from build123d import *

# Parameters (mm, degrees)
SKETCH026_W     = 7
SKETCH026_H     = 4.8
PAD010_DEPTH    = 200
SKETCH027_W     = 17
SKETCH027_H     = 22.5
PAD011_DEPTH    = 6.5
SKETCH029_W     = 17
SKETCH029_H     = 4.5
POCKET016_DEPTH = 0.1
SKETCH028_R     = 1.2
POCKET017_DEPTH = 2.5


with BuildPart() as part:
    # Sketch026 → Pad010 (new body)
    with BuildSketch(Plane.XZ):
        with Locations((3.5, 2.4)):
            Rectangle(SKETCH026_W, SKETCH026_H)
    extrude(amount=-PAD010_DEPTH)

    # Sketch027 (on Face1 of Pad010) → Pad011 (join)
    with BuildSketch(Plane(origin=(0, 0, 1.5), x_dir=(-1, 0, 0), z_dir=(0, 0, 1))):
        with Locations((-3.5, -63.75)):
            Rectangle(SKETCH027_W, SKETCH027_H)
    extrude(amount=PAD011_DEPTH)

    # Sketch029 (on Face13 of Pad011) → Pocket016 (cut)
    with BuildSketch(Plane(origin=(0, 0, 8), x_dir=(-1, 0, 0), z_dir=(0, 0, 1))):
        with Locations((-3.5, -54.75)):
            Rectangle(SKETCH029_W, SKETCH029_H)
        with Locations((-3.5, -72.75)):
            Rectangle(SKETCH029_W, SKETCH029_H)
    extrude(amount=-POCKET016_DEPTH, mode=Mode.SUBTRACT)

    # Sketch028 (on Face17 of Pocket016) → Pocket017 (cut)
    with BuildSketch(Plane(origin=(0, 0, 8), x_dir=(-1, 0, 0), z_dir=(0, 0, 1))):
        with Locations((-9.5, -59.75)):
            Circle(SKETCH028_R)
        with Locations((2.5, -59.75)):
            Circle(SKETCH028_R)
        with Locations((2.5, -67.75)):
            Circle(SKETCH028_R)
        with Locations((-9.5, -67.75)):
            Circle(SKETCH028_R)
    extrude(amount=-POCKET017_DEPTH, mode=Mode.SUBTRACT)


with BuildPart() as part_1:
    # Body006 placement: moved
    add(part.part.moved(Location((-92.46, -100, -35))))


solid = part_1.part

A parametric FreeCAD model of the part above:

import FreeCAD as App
import Part
import Sketcher

V = App.Vector
Q = App.Units.Quantity


def add_polygon(sketch, points):
    """Adds a closed chain of lines whose ends are joined by coincident constraints."""
    first, n = sketch.GeometryCount, len(points)
    for a, b in zip(points, points[1:] + points[:1]):
        sketch.addGeometry(Part.LineSegment(App.Vector(*a, 0), App.Vector(*b, 0)), False)
    for i in range(n):
        sketch.addConstraint(Sketcher.Constraint("Coincident", first + i, 2, first + (i + 1) % n, 1))

doc = App.newDocument("Part")
params = doc.addObject("Spreadsheet::Sheet", "Params")
for row, (alias, value) in enumerate([
    ("sketch1_width", "7 mm"),
    ("sketch1_height", "4.8 mm"),
    ("pad1_length", "200 mm"),
    ("sketch2_width", "17 mm"),
    ("sketch2_height", "22.5 mm"),
    ("pad2_length", "6.5 mm"),
    ("sketch3_width", "17 mm"),
    ("sketch3_height", "4.5 mm"),
    ("pocket1_length", "0.1 mm"),
    ("sketch4_diameter", "2.4 mm"),
    ("pocket2_length", "2.5 mm"),
], start=1):
    params.set(f"A{row}", alias)
    params.set(f"B{row}", "=" + value)
    params.setAlias(f"B{row}", alias)

body = doc.addObject("PartDesign::Body", "Body")

sketch1 = doc.addObject("Sketcher::SketchObject", "Sketch")
body.addObject(sketch1)
sketch1.AttachmentSupport = (doc.XZ_Plane, [""])
sketch1.MapMode = "FlatFace"
add_polygon(sketch1, [(0, 4.8), (0, 0), (7, 0), (7, 4.8)])
sketch1.addConstraint([
    Sketcher.Constraint("Vertical", 0),
    Sketcher.Constraint("Horizontal", 1),
    Sketcher.Constraint("Vertical", 2),
    Sketcher.Constraint("Horizontal", 3),
    Sketcher.Constraint("Coincident", 0, 2, -1, 1),
    Sketcher.Constraint("DistanceX", 1, 1, 1, 2, Q("7 mm")),
    Sketcher.Constraint("DistanceY", 0, 2, 0, 1, Q("4.8 mm")),
])
sketch1.setExpression("Constraints[9]", "Params.sketch1_width")
sketch1.setExpression("Constraints[10]", "Params.sketch1_height")
pad1 = doc.addObject("PartDesign::Pad", "Pad")
body.addObject(pad1)
pad1.Profile = sketch1
pad1.setExpression("Length", "Params.pad1_length")
pad1.Reversed = True

sketch2 = doc.addObject("Sketcher::SketchObject", "Sketch001")
body.addObject(sketch2)
sketch2.AttachmentSupport = (doc.XY_Plane, [""])
sketch2.MapMode = "FlatFace"
sketch2.AttachmentOffset = App.Placement(V(0, 0, 1.5), App.Rotation())
add_polygon(sketch2, [(12, 52), (12, 75), (-5, 75), (-5, 52)])
sketch2.addConstraint([
    Sketcher.Constraint("Vertical", 0),
    Sketcher.Constraint("Horizontal", 1),
    Sketcher.Constraint("Vertical", 2),
    Sketcher.Constraint("Horizontal", 3),
    Sketcher.Constraint("DistanceX", 1, 2, 1, 1, Q("17 mm")),
    Sketcher.Constraint("DistanceY", 0, 1, 0, 2, Q("22.5 mm")),
    Sketcher.Constraint("DistanceX", -1, 1, 0, 2, Q("12 mm")),
    Sketcher.Constraint("DistanceY", -1, 1, 0, 2, Q("75 mm")),
])
sketch2.setExpression("Constraints[8]", "Params.sketch2_width")
sketch2.setExpression("Constraints[9]", "Params.sketch2_height")
pad2 = doc.addObject("PartDesign::Pad", "Pad001")
body.addObject(pad2)
pad2.Profile = sketch2
pad2.setExpression("Length", "Params.pad2_length")

sketch3 = doc.addObject("Sketcher::SketchObject", "Sketch002")
body.addObject(sketch3)
sketch3.AttachmentSupport = (doc.XY_Plane, [""])
sketch3.MapMode = "FlatFace"
sketch3.AttachmentOffset = App.Placement(V(0, 0, 8), App.Rotation())
add_polygon(sketch3, [(12, 52.5), (12, 57), (-5, 57), (-5, 52.5)])
add_polygon(sketch3, [(12, 70.5), (12, 75), (-5, 75), (-5, 70.5)])
sketch3.addConstraint([
    Sketcher.Constraint("Vertical", 0),
    Sketcher.Constraint("Horizontal", 1),
    Sketcher.Constraint("Vertical", 2),
    Sketcher.Constraint("Horizontal", 3),
    Sketcher.Constraint("Vertical", 4),
    Sketcher.Constraint("Horizontal", 5),
    Sketcher.Constraint("Vertical", 6),
    Sketcher.Constraint("Horizontal", 7),
    Sketcher.Constraint("Vertical", 3, 2, 4, 2),
    Sketcher.Constraint("Vertical", 2, 2, 5, 2),
    Sketcher.Constraint("Equal", 2, 4),
    Sketcher.Constraint("DistanceX", 1, 2, 1, 1, Q("17 mm")),
    Sketcher.Constraint("DistanceY", 0, 1, 0, 2, Q("4.5 mm")),
    Sketcher.Constraint("DistanceX", -1, 1, 0, 2, Q("12 mm")),
    Sketcher.Constraint("DistanceY", -1, 1, 0, 2, Q("57 mm")),
    Sketcher.Constraint("DistanceY", -1, 1, 4, 2, Q("75 mm")),
])
sketch3.setExpression("Constraints[19]", "Params.sketch3_width")
sketch3.setExpression("Constraints[20]", "Params.sketch3_height")
pocket1 = doc.addObject("PartDesign::Pocket", "Pocket")
body.addObject(pocket1)
pocket1.Profile = sketch3
pocket1.setExpression("Length", "Params.pocket1_length")

sketch4 = doc.addObject("Sketcher::SketchObject", "Sketch003")
body.addObject(sketch4)
sketch4.AttachmentSupport = (doc.XY_Plane, [""])
sketch4.MapMode = "FlatFace"
sketch4.AttachmentOffset = App.Placement(V(0, 0, 8), App.Rotation())
sketch4.addGeometry([
    Part.Circle(V(9.5, 59.8, 0), V(0, 0, 1), 1.2),
    Part.Circle(V(-2.5, 59.8, 0), V(0, 0, 1), 1.2),
    Part.Circle(V(-2.5, 67.8, 0), V(0, 0, 1), 1.2),
    Part.Circle(V(9.5, 67.8, 0), V(0, 0, 1), 1.2),
], False)
sketch4.addConstraint([
    Sketcher.Constraint("Equal", 0, 1),
    Sketcher.Constraint("Equal", 1, 2),
    Sketcher.Constraint("Equal", 2, 3),
    Sketcher.Constraint("Horizontal", 0, 3, 1, 3),
    Sketcher.Constraint("Horizontal", 2, 3, 3, 3),
    Sketcher.Constraint("Vertical", 1, 3, 2, 3),
    Sketcher.Constraint("Vertical", 0, 3, 3, 3),
    Sketcher.Constraint("Diameter", 0, Q("2.4 mm")),
    Sketcher.Constraint("DistanceX", 1, 3, 0, 3, Q("12 mm")),
    Sketcher.Constraint("DistanceY", 1, 3, 2, 3, Q("8 mm")),
    Sketcher.Constraint("DistanceX", -1, 1, 0, 3, Q("9.5 mm")),
    Sketcher.Constraint("DistanceY", -1, 1, 0, 3, Q("59.75 mm")),
])
sketch4.setExpression("Constraints[7]", "Params.sketch4_diameter")
pocket2 = doc.addObject("PartDesign::Pocket", "Pocket001")
body.addObject(pocket2)
pocket2.Profile = sketch4
pocket2.setExpression("Length", "Params.pocket2_length")
body2 = doc.addObject("PartDesign::Body", "Body001")
doc.recompute()

body.Placement = App.Placement(V(-92.46, -100, -35), App.Rotation(V(0, 0, 1), 0))
boolean = doc.addObject("PartDesign::Boolean", "Boolean")
body2.addObject(boolean)
boolean.Type = "Fuse"
boolean.addObjects([body])

doc.recompute()
